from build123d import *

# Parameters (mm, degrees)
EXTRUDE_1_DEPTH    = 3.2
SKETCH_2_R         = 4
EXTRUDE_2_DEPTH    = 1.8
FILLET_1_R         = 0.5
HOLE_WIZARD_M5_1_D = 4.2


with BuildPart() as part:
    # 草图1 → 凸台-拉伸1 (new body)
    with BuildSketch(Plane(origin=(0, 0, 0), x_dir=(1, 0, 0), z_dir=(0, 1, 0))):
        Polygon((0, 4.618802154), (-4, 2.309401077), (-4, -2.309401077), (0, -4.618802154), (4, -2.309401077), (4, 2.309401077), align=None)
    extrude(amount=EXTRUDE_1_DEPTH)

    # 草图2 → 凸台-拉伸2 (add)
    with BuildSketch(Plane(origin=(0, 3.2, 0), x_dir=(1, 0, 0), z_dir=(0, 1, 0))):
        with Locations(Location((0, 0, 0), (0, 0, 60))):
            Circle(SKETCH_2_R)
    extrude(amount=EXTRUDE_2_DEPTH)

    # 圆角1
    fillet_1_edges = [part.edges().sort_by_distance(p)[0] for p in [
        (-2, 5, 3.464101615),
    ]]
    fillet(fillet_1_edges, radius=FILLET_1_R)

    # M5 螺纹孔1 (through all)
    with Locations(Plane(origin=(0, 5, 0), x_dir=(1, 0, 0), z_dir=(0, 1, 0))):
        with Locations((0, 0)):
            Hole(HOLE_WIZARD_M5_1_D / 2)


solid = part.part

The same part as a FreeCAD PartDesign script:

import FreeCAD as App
import Part
import Sketcher
from FreeCAD import Vector
Q = App.Units.Quantity


def edges_at(feature, points):
    """Names of the edges that pass closest to the given points."""
    edges = feature.Shape.Edges
    near = lambda p: min(range(len(edges)), key=lambda i: edges[i].distToShape(Part.Vertex(*p))[0])
    return sorted({f"Edge{near(p) + 1}" for p in points})

doc = App.newDocument("Part")
params = doc.addObject("Spreadsheet::Sheet", "Params")
for row, (alias, value) in enumerate([
    ("pad1_length", "3.2 mm"),
    ("sketch2_diameter", "8 mm"),
    ("pad2_length", "1.8 mm"),
    ("fillet_radius", "0.5 mm"),
    ("sketch3_diameter", "4.2 mm"),
    ("hole_diameter", "4.2 mm"),
], start=1):
    params.set(f"A{row}", alias)
    params.set(f"B{row}", "=" + value)
    params.setAlias(f"B{row}", alias)

body = doc.addObject("PartDesign::Body", "Body")

# Sketch on XZ plane
sketch1 = doc.addObject("Sketcher::SketchObject", "Sketch")
body.addObject(sketch1)
sketch1.AttachmentSupport = (doc.XZ_Plane, [""])
sketch1.MapMode = "FlatFace"
sketch1.addGeometry(Part.LineSegment(Vector(0, -4.6, 0), Vector(-4, -2.3, 0)), False)
sketch1.addGeometry(Part.LineSegment(Vector(-4, -2.3, 0), Vector(-4, 2.3, 0)), False)
sketch1.addGeometry(Part.LineSegment(Vector(-4, 2.3, 0), Vector(0, 4.6, 0)), False)
sketch1.addGeometry(Part.LineSegment(Vector(0, 4.6, 0), Vector(4, 2.3, 0)), False)
sketch1.addGeometry(Part.LineSegment(Vector(4, 2.3, 0), Vector(4, -2.3, 0)), False)
sketch1.addGeometry(Part.LineSegment(Vector(4, -2.3, 0), Vector(0, -4.6, 0)), False)
sketch1.addConstraint(Sketcher.Constraint("Coincident", 0, 2, 1, 1))
sketch1.addConstraint(Sketcher.Constraint("Coincident", 1, 2, 2, 1))
sketch1.addConstraint(Sketcher.Constraint("Coincident", 2, 2, 3, 1))
sketch1.addConstraint(Sketcher.Constraint("Coincident", 3, 2, 4, 1))
sketch1.addConstraint(Sketcher.Constraint("Coincident", 4, 2, 5, 1))
sketch1.addConstraint(Sketcher.Constraint("Coincident", 5, 2, 0, 1))
sketch1.addConstraint(Sketcher.Constraint("Vertical", 1))
sketch1.addConstraint(Sketcher.Constraint("Vertical", 4))
sketch1.addConstraint(Sketcher.Constraint("Symmetric", 0, 2, 3, 2, -1, 1))
sketch1.addConstraint(Sketcher.Constraint("Symmetric", 2, 2, 5, 2, -1, 1))
sketch1.addConstraint(Sketcher.Constraint("PointOnObject", 2, 2, -2))
sketch1.addConstraint(Sketcher.Constraint("Parallel", 2, 5))
sketch1.addConstraint(Sketcher.Constraint("Horizontal", 1, 2, 3, 2))
sketch1.addConstraint(Sketcher.Constraint("Angle", 0, Q("150 deg")))
sketch1.addConstraint(Sketcher.Constraint("DistanceX", 0, 2, -1, 1, Q("4 mm")))
sketch1.addConstraint(Sketcher.Constraint("DistanceY", 0, 2, -1, 1, Q("2.309401 mm")))
pad1 = doc.addObject("PartDesign::Pad", "Pad")
body.addObject(pad1)
pad1.Profile = sketch1
pad1.setExpression("Length", "Params.pad1_length")
pad1.Reversed = True

# Sketch on XZ plane
sketch2 = doc.addObject("Sketcher::SketchObject", "Sketch001")
body.addObject(sketch2)
sketch2.AttachmentSupport = (doc.XZ_Plane, [""])
sketch2.MapMode = "FlatFace"
sketch2.AttachmentOffset = App.Placement(Vector(0, 0, -3.2), App.Rotation())
sketch2.addGeometry(Part.Circle(Vector(0, 0, 0), Vector(0, 0, 1), 4), False)
sketch2.addConstraint(Sketcher.Constraint("Coincident", 0, 3, -1, 1))
sketch2.addConstraint(Sketcher.Constraint("Diameter", 0, Q("8 mm")))
sketch2.setExpression("Constraints[1]", "Params.sketch2_diameter")
pad2 = doc.addObject("PartDesign::Pad", "Pad001")
body.addObject(pad2)
pad2.Profile = sketch2
pad2.setExpression("Length", "Params.pad2_length")
pad2.Reversed = True
doc.recompute()

fillet = doc.addObject("PartDesign::Fillet", "Fillet")
body.addObject(fillet)
fillet.Base = (pad2, edges_at(pad2, [(-2, 5, 3.464)]))
fillet.setExpression("Radius", "Params.fillet_radius")

# Sketch on XZ plane
sketch3 = doc.addObject("Sketcher::SketchObject", "Sketch002")
body.addObject(sketch3)
sketch3.AttachmentSupport = (doc.XZ_Plane, [""])
sketch3.MapMode = "FlatFace"
sketch3.AttachmentOffset = App.Placement(Vector(0, 0, -5), App.Rotation())
sketch3.addGeometry(Part.Circle(Vector(0, 0, 0), Vector(0, 0, 1), 2.1), False)
sketch3.addConstraint(Sketcher.Constraint("Coincident", 0, 3, -1, 1))
sketch3.addConstraint(Sketcher.Constraint("Diameter", 0, Q("4.2 mm")))
sketch3.setExpression("Constraints[1]", "Params.sketch3_diameter")
doc.recompute()
hole = doc.addObject("PartDesign::Hole", "Hole")
body.addObject(hole)
hole.Profile = sketch3
hole.ThreadType = "None"
hole.setExpression("Diameter", "Params.hole_diameter")
hole.DepthType = "ThroughAll"
hole.Reversed = True

doc.recompute()
